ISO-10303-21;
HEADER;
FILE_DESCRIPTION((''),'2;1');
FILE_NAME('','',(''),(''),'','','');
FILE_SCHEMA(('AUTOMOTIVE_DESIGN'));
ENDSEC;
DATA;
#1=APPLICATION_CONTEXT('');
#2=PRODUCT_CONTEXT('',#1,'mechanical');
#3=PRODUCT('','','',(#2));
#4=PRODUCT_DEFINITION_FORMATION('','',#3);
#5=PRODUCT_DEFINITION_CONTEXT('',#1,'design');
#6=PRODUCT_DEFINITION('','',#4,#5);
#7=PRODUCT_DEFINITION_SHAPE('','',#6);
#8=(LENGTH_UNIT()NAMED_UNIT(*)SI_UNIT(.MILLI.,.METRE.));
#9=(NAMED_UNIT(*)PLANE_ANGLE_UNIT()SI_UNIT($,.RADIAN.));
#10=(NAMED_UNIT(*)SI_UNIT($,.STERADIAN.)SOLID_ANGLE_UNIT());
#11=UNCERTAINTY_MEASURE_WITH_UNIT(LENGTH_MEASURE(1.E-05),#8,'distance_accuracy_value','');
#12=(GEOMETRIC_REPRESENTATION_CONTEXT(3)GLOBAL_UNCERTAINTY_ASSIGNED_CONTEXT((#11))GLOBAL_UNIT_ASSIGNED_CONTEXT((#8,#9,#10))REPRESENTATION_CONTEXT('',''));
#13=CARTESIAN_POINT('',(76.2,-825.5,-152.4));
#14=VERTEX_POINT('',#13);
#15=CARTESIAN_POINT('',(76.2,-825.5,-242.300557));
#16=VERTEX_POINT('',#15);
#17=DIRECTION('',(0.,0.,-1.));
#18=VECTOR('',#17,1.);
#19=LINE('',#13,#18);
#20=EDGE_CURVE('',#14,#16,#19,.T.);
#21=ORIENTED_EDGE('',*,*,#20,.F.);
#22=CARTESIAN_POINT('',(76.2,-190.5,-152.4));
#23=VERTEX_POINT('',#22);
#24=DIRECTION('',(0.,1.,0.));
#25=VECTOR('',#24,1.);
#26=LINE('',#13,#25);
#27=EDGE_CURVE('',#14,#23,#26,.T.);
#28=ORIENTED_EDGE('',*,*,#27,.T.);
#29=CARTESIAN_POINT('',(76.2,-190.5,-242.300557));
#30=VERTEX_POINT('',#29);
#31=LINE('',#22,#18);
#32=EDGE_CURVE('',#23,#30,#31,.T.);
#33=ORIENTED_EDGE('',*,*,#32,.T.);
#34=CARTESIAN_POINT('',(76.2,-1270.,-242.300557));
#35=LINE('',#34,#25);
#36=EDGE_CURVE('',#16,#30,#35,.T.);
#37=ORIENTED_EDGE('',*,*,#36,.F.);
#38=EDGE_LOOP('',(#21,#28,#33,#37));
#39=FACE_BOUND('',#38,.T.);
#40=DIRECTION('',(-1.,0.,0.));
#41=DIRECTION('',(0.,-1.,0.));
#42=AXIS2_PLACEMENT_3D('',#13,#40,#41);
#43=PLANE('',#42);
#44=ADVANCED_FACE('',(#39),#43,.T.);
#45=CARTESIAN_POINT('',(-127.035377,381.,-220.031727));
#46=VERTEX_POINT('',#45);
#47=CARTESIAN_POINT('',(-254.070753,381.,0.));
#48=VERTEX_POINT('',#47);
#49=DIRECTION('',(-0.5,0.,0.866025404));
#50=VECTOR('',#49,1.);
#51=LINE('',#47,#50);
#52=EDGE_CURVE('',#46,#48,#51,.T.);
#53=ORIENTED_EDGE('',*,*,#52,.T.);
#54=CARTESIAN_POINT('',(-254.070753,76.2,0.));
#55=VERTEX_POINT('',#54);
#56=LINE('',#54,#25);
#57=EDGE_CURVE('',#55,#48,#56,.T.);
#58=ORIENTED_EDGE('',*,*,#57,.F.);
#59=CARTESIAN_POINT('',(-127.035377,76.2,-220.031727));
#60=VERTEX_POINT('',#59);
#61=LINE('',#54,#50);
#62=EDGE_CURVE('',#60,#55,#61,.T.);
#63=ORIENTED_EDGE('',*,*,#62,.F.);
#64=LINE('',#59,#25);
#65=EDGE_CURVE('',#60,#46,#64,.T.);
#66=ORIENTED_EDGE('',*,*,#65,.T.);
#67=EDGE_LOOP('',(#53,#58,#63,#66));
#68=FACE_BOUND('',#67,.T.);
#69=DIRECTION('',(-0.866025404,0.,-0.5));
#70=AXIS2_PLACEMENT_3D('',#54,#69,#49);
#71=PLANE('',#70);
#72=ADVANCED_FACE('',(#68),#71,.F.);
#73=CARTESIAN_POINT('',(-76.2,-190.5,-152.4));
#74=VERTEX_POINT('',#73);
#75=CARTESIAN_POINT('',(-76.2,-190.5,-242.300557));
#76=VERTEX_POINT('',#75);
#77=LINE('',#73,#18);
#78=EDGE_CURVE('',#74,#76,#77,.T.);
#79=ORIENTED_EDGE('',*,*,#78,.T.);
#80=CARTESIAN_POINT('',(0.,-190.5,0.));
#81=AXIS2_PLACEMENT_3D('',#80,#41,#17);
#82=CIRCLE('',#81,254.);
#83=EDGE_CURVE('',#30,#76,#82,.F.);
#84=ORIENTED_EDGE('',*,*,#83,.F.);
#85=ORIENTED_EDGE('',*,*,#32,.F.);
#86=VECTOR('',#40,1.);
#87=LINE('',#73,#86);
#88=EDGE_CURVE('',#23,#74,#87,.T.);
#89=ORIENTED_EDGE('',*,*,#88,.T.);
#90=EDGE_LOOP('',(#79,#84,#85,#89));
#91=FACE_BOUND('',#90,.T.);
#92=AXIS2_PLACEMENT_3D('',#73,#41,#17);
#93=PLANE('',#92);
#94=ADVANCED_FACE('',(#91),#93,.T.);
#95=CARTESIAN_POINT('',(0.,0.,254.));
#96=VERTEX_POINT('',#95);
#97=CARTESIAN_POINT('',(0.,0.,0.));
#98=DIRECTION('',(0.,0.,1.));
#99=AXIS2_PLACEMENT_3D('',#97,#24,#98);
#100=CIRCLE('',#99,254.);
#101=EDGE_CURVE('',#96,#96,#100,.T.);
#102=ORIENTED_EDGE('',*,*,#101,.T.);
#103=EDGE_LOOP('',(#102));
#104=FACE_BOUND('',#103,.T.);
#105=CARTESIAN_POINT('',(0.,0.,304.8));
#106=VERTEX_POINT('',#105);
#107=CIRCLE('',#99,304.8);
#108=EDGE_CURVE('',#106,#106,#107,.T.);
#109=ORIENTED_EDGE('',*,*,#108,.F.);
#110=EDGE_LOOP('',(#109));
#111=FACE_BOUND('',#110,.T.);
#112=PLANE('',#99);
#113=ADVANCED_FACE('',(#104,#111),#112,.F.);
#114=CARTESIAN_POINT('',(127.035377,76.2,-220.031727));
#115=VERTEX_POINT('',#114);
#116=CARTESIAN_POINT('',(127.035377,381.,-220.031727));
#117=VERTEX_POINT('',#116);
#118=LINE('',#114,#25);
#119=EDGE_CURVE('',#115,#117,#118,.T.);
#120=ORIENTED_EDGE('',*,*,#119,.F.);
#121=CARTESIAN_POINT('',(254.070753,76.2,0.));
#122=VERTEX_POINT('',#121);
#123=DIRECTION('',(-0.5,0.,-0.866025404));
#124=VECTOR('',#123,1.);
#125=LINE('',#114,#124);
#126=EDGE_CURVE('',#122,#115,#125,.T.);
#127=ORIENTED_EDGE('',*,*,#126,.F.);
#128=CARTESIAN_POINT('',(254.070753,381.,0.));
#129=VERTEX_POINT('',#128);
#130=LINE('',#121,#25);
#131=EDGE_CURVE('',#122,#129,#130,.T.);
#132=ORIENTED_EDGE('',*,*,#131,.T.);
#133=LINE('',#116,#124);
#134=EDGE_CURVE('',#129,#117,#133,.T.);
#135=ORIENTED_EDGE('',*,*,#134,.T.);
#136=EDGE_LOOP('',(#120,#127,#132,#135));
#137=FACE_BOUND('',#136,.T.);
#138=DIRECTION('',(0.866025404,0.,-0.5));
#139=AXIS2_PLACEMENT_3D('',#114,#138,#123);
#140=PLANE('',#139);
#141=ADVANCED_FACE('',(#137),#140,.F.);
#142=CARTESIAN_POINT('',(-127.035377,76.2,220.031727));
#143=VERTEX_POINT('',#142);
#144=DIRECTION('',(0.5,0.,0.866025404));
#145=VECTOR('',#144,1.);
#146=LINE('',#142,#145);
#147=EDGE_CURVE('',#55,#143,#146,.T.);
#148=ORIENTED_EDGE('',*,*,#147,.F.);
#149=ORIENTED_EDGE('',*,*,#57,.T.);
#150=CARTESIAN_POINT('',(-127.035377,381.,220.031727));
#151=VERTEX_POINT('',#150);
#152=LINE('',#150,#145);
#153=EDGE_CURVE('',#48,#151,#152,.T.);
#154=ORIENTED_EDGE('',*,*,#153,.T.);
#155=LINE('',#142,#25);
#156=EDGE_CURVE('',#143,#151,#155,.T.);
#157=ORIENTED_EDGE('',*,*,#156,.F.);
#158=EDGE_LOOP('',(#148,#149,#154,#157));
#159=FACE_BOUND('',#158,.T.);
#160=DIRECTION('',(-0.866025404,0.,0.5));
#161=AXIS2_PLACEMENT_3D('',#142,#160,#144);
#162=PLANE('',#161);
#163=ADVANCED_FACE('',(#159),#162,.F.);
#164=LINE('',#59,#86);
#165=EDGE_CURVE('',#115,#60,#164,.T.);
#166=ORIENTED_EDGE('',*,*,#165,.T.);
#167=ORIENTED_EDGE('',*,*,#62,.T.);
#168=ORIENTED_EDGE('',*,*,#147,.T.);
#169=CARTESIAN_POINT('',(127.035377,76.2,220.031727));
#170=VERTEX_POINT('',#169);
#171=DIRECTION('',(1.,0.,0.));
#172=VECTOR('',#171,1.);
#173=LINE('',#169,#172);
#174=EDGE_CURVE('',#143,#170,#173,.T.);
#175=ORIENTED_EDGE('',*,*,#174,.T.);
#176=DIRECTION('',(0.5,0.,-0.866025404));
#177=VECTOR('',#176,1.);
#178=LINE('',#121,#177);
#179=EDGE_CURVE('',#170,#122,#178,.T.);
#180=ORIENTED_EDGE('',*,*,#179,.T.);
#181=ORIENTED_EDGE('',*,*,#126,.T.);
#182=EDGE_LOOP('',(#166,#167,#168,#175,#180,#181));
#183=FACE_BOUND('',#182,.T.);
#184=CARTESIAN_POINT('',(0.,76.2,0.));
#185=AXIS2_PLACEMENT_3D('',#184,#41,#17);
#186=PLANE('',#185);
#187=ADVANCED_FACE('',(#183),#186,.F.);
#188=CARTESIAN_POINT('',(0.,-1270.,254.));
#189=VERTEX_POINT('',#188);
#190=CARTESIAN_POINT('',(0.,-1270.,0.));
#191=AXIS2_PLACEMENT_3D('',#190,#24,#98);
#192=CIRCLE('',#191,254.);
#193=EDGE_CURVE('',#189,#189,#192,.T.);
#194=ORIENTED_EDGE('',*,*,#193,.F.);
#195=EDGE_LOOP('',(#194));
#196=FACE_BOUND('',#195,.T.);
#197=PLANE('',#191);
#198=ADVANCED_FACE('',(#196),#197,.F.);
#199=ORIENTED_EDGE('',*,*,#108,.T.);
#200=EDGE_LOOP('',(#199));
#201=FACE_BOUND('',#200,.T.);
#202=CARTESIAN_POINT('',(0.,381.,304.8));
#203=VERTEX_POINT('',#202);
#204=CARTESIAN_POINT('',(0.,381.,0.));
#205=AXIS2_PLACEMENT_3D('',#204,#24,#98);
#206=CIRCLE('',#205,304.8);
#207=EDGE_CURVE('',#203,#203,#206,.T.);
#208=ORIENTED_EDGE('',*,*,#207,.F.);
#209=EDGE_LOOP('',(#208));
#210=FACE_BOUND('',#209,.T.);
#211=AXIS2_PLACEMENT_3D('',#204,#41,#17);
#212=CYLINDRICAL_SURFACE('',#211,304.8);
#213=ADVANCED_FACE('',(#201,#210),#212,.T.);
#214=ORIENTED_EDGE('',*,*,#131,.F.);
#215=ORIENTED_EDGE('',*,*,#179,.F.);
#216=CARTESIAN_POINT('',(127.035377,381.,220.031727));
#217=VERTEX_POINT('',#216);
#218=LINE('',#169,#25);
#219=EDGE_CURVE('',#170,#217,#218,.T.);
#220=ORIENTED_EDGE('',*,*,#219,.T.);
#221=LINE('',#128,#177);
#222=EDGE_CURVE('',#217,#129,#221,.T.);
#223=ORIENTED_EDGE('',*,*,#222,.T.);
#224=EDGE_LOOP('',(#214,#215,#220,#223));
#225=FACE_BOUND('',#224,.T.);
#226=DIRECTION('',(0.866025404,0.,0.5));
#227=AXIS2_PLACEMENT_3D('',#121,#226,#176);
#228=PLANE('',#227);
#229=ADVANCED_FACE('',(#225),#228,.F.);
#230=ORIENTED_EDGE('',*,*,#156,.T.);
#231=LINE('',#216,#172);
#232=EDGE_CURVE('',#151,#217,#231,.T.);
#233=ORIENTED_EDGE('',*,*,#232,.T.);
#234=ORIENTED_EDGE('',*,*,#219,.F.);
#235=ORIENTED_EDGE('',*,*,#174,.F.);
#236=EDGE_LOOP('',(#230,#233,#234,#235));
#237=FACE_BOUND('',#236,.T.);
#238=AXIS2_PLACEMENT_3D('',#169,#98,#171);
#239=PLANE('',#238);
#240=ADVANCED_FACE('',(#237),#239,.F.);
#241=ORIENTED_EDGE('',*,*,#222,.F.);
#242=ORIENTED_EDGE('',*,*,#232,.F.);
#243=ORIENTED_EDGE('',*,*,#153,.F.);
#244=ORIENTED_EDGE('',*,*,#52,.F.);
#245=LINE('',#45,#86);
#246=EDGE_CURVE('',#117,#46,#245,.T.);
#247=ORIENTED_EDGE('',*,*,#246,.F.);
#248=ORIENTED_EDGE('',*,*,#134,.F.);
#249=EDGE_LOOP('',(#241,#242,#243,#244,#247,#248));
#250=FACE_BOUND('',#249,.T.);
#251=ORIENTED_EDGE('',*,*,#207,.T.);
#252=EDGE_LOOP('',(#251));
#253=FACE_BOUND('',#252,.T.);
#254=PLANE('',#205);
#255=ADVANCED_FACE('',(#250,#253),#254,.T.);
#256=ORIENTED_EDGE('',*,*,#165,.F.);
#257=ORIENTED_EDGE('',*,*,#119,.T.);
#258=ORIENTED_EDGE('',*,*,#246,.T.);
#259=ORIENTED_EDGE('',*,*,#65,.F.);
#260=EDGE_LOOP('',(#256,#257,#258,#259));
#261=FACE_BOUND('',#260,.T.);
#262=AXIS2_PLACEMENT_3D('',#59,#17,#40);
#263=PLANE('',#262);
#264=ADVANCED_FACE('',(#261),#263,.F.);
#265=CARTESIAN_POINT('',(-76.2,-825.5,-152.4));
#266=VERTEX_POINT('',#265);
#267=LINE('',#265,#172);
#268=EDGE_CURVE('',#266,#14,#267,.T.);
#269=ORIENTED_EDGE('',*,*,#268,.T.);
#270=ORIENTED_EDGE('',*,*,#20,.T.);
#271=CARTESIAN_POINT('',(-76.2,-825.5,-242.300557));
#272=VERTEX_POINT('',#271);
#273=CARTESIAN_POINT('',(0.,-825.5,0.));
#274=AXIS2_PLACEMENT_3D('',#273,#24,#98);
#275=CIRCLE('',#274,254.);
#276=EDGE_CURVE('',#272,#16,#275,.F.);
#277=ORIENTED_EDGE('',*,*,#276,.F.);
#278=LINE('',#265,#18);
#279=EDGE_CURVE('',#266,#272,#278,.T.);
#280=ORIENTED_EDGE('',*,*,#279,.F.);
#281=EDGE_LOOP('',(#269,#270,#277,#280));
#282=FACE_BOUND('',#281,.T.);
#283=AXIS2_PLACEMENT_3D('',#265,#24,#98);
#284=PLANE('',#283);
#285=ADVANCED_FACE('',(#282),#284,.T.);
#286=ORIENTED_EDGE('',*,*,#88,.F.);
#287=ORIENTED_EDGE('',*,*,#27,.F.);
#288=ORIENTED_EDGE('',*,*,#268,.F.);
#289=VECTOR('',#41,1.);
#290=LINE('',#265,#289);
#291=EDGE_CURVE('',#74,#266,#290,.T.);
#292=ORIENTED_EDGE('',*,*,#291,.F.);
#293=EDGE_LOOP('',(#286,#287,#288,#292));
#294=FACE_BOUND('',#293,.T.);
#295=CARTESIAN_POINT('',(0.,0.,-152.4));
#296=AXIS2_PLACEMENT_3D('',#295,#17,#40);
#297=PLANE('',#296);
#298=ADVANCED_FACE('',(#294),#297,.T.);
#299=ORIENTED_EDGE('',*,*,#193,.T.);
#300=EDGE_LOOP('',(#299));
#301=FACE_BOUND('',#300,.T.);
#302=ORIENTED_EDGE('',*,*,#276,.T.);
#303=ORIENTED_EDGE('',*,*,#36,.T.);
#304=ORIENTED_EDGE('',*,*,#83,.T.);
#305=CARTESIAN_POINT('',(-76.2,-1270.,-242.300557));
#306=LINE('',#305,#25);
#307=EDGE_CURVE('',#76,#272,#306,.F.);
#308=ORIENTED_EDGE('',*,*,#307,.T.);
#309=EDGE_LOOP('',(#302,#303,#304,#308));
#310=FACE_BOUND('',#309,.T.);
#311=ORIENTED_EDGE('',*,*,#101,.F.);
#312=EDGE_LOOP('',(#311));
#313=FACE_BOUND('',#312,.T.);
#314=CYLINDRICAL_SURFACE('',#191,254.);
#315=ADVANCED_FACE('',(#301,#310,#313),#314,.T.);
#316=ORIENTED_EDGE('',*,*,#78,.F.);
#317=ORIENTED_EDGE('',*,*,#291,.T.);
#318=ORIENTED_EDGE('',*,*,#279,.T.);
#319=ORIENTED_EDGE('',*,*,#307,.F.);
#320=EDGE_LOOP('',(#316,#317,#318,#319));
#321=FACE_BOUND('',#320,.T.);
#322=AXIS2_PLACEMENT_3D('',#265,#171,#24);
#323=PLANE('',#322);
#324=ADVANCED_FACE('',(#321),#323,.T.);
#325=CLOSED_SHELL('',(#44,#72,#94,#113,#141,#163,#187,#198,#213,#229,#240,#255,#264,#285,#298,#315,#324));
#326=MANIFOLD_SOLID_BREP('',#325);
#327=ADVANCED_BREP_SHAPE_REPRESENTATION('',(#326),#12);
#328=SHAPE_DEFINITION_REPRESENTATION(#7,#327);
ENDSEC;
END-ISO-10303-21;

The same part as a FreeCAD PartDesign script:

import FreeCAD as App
import Part
import Sketcher
from FreeCAD import Vector
Q = App.Units.Quantity


def add_polygon(sketch, points):
    """Adds a closed chain of lines whose ends are joined by coincident constraints."""
    first, n = sketch.GeometryCount, len(points)
    for a, b in zip(points, points[1:] + points[:1]):
        sketch.addGeometry(Part.LineSegment(App.Vector(*a, 0), App.Vector(*b, 0)), False)
    for i in range(n):
        sketch.addConstraint(Sketcher.Constraint("Coincident", first + i, 2, first + (i + 1) % n, 1))

doc = App.newDocument("Part")
body = doc.addObject("PartDesign::Body", "Body")

# Sketch on XZ plane
sketch1 = doc.addObject("Sketcher::SketchObject", "Sketch")
body.addObject(sketch1)
sketch1.AttachmentSupport = (doc.XZ_Plane, [""])
sketch1.MapMode = "FlatFace"
sketch1.addGeometry(Part.Circle(Vector(0, 0, 0), Vector(0, 0, 1), 254), False)
sketch1.addConstraint(Sketcher.Constraint("Coincident", 0, 3, -1, 1))
sketch1.addConstraint(Sketcher.Constraint("Diameter", 0, Q("20 in")))
pad1 = doc.addObject("PartDesign::Pad", "Pad")
body.addObject(pad1)
pad1.Profile = sketch1
pad1.Length = Q("50 in")

# Sketch on XZ plane
sketch2 = doc.addObject("Sketcher::SketchObject", "Sketch001")
body.addObject(sketch2)
sketch2.AttachmentSupport = (doc.XZ_Plane, [""])
sketch2.MapMode = "FlatFace"
sketch2.addGeometry(Part.Circle(Vector(0, 0, 0), Vector(0, 0, 1), 305), False)
sketch2.addConstraint(Sketcher.Constraint("Coincident", 0, 3, -1, 1))
sketch2.addConstraint(Sketcher.Constraint("Diameter", 0, Q("24 in")))
pad2 = doc.addObject("PartDesign::Pad", "Pad001")
body.addObject(pad2)
pad2.Profile = sketch2
pad2.Length = Q("15 in")
pad2.Reversed = True

# Sketch on XZ plane
sketch3 = doc.addObject("Sketcher::SketchObject", "Sketch002")
body.addObject(sketch3)
sketch3.AttachmentSupport = (doc.XZ_Plane, [""])
sketch3.MapMode = "FlatFace"
sketch3.AttachmentOffset = App.Placement(Vector(0, 0, -15 * 25.4), App.Rotation())
add_polygon(sketch3, [(127, -220), (-127, -220), (-254, 0), (-127, 220), (127, 220), (254, 0)])  # lines 0-5
sketch3.addConstraint(Sketcher.Constraint("Horizontal", 0))
sketch3.addConstraint(Sketcher.Constraint("Horizontal", 3))
sketch3.addConstraint(Sketcher.Constraint("Symmetric", 0, 2, 3, 2, -1, 1))
sketch3.addConstraint(Sketcher.Constraint("Symmetric", 1, 2, 4, 2, -1, 1))
sketch3.addConstraint(Sketcher.Constraint("PointOnObject", 1, 2, -1))
sketch3.addConstraint(Sketcher.Constraint("Parallel", 2, 5))
sketch3.addConstraint(Sketcher.Constraint("Vertical", 0, 2, 2, 2))
sketch3.addConstraint(Sketcher.Constraint("Angle", 1, Q("120 deg")))
sketch3.addConstraint(Sketcher.Constraint("DistanceX", 0, 2, 0, 1, Q("254.070753 mm")))
sketch3.addConstraint(Sketcher.Constraint("DistanceX", 1, 2, 3, 2, Q("381.10613 mm")))
pocket1 = doc.addObject("PartDesign::Pocket", "Pocket")
body.addObject(pocket1)
pocket1.Profile = sketch3
pocket1.Length = Q("12 in")
pocket1.Reversed = True

# Sketch on XY plane
sketch4 = doc.addObject("Sketcher::SketchObject", "Sketch003")
body.addObject(sketch4)
sketch4.AttachmentSupport = (doc.XY_Plane, [""])
sketch4.MapMode = "FlatFace"
sketch4.AttachmentOffset = App.Placement(Vector(0, 0, -10 * 25.4), App.Rotation())
add_polygon(sketch4, [(-76, -190), (-76, -826), (76, -826), (76, -190)])  # lines 0-3
sketch4.addConstraint(Sketcher.Constraint("Vertical", 0))
sketch4.addConstraint(Sketcher.Constraint("Horizontal", 1))
sketch4.addConstraint(Sketcher.Constraint("Vertical", 2))
sketch4.addConstraint(Sketcher.Constraint("Horizontal", 3))
sketch4.addConstraint(Sketcher.Constraint("DistanceX", 1, 1, 1, 2, Q("6 in")))
sketch4.addConstraint(Sketcher.Constraint("DistanceY", 0, 2, 0, 1, Q("25 in")))
sketch4.addConstraint(Sketcher.Constraint("DistanceX", 0, 2, -1, 1, Q("3 in")))
sketch4.addConstraint(Sketcher.Constraint("DistanceY", 0, 2, -1, 1, Q("32.5 in")))
pocket2 = doc.addObject("PartDesign::Pocket", "Pocket001")
body.addObject(pocket2)
pocket2.Profile = sketch4
pocket2.Length = Q("4 in")
pocket2.Reversed = True

doc.recompute()
